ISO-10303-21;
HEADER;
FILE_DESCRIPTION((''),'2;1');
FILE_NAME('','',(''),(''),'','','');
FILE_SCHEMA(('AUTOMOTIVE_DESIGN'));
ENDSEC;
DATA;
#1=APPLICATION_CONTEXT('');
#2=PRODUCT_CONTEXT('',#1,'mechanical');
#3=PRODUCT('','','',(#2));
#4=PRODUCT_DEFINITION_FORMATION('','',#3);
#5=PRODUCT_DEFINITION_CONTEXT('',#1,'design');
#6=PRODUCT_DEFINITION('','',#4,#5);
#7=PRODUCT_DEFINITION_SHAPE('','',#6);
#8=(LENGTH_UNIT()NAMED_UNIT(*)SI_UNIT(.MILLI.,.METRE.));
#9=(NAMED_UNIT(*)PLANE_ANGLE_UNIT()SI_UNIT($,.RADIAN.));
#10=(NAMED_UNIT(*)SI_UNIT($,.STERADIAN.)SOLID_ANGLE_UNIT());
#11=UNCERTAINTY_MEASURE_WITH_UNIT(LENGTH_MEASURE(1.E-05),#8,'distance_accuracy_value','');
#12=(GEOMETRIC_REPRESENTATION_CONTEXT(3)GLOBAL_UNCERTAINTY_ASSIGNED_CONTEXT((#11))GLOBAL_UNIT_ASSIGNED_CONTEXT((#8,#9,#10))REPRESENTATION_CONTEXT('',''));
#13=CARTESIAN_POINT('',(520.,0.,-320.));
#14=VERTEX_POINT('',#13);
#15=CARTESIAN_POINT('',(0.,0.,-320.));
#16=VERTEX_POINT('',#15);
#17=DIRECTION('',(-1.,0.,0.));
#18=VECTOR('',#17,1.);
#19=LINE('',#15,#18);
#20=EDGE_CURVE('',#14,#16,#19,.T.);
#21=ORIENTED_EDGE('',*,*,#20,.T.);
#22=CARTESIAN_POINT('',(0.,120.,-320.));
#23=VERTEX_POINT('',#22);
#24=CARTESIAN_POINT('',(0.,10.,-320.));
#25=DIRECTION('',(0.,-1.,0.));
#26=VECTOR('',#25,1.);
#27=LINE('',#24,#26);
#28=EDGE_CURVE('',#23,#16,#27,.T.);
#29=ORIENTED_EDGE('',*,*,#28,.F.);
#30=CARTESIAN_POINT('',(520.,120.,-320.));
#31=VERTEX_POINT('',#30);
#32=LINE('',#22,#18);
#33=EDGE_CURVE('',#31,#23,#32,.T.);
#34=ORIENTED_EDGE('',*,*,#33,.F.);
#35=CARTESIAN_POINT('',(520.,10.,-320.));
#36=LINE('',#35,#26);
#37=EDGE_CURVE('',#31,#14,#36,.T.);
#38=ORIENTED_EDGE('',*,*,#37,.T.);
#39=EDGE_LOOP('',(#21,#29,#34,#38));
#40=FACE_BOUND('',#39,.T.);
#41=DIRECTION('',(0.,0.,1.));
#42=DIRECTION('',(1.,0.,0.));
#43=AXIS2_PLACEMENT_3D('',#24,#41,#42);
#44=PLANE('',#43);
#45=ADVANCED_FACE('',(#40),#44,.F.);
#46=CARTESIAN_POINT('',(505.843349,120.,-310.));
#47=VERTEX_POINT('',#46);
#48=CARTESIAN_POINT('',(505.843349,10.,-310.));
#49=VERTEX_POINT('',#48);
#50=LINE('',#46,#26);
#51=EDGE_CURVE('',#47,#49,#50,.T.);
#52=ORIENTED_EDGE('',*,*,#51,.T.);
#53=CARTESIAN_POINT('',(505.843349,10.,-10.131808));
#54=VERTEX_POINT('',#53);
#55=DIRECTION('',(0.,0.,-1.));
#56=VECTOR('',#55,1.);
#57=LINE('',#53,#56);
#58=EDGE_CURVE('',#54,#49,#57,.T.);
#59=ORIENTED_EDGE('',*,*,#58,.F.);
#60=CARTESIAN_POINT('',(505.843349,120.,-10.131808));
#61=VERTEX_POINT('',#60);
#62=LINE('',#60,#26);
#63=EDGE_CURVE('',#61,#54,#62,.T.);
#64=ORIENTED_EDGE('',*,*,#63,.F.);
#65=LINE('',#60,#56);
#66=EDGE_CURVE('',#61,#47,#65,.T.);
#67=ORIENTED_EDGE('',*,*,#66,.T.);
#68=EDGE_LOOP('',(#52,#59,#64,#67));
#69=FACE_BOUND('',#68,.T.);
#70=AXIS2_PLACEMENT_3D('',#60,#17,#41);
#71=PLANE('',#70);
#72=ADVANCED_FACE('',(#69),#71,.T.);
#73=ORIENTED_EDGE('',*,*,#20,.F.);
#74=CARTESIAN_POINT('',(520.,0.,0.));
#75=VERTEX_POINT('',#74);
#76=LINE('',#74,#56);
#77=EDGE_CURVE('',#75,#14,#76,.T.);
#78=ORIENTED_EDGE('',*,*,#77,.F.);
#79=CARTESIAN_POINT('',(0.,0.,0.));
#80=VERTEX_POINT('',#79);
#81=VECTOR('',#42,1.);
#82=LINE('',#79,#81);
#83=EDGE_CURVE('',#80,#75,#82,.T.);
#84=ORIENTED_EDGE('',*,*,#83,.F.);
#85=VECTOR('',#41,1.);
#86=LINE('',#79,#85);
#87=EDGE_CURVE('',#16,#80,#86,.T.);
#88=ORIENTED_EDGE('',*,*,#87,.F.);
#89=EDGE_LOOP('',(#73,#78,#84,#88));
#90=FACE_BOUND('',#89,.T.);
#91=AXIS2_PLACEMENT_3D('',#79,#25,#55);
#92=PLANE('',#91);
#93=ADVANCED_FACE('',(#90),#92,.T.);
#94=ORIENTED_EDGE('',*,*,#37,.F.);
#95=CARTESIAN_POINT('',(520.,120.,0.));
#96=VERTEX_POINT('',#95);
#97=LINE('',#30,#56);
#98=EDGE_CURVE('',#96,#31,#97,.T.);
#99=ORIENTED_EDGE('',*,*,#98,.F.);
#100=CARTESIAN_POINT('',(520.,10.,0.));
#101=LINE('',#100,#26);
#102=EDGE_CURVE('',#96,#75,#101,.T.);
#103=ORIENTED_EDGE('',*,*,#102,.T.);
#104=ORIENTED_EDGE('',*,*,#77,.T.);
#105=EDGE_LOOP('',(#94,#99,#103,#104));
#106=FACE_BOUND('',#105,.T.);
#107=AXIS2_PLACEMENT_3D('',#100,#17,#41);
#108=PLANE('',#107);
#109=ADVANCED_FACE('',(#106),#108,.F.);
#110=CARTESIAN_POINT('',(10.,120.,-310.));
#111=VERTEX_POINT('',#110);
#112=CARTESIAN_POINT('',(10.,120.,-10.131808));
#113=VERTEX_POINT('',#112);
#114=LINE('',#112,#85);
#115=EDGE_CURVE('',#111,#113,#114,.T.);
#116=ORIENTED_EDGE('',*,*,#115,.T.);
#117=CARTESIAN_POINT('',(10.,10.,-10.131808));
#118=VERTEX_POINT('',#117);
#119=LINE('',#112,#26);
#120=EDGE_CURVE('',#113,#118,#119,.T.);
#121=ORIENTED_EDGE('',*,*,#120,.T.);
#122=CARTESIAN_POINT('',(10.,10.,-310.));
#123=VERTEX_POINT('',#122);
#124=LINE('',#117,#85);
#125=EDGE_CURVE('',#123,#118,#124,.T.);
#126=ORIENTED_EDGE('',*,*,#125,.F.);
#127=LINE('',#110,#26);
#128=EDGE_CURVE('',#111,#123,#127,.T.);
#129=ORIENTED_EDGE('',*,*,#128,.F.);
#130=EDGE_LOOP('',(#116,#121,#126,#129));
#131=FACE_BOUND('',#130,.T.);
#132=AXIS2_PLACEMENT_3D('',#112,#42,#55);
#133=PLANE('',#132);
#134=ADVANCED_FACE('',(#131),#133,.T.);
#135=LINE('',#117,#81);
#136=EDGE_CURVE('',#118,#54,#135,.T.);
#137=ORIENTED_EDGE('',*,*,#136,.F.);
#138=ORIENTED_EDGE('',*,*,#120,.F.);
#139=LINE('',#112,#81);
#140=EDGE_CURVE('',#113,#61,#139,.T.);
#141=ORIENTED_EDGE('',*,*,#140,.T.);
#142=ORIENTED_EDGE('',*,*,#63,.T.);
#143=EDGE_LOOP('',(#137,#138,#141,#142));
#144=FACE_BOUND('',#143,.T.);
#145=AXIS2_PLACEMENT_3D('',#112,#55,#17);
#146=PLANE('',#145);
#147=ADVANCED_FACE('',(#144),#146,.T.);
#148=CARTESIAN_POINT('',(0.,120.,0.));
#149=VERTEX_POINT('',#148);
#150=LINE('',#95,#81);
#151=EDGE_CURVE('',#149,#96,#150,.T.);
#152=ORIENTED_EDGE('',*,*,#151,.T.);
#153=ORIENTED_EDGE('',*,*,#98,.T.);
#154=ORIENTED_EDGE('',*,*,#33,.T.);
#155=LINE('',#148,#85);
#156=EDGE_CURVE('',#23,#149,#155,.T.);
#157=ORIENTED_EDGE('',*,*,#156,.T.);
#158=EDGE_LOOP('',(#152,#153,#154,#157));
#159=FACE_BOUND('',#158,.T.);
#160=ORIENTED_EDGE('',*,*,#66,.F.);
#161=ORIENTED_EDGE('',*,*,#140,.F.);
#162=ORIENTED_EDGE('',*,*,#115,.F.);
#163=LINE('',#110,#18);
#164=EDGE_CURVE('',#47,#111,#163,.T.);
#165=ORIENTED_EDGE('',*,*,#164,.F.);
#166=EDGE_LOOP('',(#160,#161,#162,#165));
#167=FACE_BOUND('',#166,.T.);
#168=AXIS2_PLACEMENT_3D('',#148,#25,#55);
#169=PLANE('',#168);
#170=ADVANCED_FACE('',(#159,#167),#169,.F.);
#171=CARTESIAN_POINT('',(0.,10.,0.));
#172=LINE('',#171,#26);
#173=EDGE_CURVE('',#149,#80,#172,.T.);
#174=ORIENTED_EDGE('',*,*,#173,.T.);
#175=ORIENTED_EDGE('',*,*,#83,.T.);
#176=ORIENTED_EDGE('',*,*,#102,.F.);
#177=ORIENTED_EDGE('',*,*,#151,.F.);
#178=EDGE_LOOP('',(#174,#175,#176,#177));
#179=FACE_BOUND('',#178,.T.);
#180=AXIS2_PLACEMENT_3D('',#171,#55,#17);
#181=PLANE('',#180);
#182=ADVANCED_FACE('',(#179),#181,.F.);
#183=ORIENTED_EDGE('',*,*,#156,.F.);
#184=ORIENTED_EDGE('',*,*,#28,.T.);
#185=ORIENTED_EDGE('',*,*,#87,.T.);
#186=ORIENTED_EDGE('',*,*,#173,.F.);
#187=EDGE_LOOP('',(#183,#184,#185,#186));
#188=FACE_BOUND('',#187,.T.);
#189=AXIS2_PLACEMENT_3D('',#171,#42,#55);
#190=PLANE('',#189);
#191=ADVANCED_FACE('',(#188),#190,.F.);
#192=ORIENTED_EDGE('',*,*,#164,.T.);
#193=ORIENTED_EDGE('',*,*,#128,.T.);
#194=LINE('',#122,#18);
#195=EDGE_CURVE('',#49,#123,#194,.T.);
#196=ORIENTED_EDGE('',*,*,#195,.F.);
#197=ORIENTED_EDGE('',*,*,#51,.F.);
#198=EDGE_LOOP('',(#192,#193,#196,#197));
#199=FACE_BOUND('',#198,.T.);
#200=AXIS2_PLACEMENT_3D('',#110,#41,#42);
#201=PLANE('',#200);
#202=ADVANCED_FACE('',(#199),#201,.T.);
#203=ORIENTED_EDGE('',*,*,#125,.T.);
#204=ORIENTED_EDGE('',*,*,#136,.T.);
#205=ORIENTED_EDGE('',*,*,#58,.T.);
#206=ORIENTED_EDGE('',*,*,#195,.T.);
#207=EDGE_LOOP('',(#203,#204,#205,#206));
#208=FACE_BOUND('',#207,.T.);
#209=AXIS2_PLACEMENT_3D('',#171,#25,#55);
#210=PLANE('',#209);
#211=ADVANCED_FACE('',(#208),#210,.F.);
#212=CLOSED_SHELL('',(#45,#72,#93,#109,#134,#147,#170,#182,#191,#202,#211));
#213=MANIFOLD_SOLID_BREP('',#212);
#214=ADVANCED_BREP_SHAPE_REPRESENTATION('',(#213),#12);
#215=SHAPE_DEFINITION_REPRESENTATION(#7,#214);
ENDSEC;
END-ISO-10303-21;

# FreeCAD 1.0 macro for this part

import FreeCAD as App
import Part
import Sketcher
from FreeCAD import Vector
Q = App.Units.Quantity


def add_polygon(sketch, points):
    """Adds a closed chain of lines whose ends are joined by coincident constraints."""
    first, n = sketch.GeometryCount, len(points)
    for a, b in zip(points, points[1:] + points[:1]):
        sketch.addGeometry(Part.LineSegment(App.Vector(*a, 0), App.Vector(*b, 0)), False)
    for i in range(n):
        sketch.addConstraint(Sketcher.Constraint("Coincident", first + i, 2, first + (i + 1) % n, 1))

doc = App.newDocument("Part")
params = doc.addObject("Spreadsheet::Sheet", "Params")
for row, (alias, value) in enumerate([
    ("sketch1_width", "520 mm"),
    ("sketch1_height", "320 mm"),
    ("pad1_length", "10 mm"),
    ("sketch2_width", "520 mm"),
    ("sketch2_height", "320 mm"),
    ("pad2_length", "110 mm"),
], start=1):
    params.set(f"A{row}", alias)
    params.set(f"B{row}", "=" + value)
    params.setAlias(f"B{row}", alias)

body = doc.addObject("PartDesign::Body", "Body")

sketch1 = doc.addObject("Sketcher::SketchObject", "Sketch")
body.addObject(sketch1)
sketch1.AttachmentSupport = (doc.XZ_Plane, [""])
sketch1.MapMode = "FlatFace"
add_polygon(sketch1, [(0, -320), (0, 0), (520, 0), (520, -320)])
sketch1.addConstraint([
    Sketcher.Constraint("Vertical", 0),
    Sketcher.Constraint("Horizontal", 1),
    Sketcher.Constraint("Vertical", 2),
    Sketcher.Constraint("Horizontal", 3),
    Sketcher.Constraint("Coincident", 0, 2, -1, 1),
    Sketcher.Constraint("DistanceX", 1, 1, 1, 2, Q("520 mm")),
    Sketcher.Constraint("DistanceY", 0, 1, 0, 2, Q("320 mm")),
])
sketch1.setExpression("Constraints[9]", "Params.sketch1_width")
sketch1.setExpression("Constraints[10]", "Params.sketch1_height")
pad1 = doc.addObject("PartDesign::Pad", "Pad")
body.addObject(pad1)
pad1.Profile = sketch1
pad1.setExpression("Length", "Params.pad1_length")
pad1.Reversed = True

sketch2 = doc.addObject("Sketcher::SketchObject", "Sketch001")
body.addObject(sketch2)
sketch2.AttachmentSupport = (doc.XZ_Plane, [""])
sketch2.MapMode = "FlatFace"
sketch2.AttachmentOffset = App.Placement(Vector(0, 0, -10), App.Rotation())
add_polygon(sketch2, [(0, -320), (0, 0), (520, 0), (520, -320)])
add_polygon(sketch2, [(506, -10), (10, -10), (10, -310), (506, -310)])
sketch2.addConstraint([
    Sketcher.Constraint("Vertical", 0),
    Sketcher.Constraint("Horizontal", 1),
    Sketcher.Constraint("Vertical", 2),
    Sketcher.Constraint("Horizontal", 3),
    Sketcher.Constraint("Horizontal", 4),
    Sketcher.Constraint("Vertical", 5),
    Sketcher.Constraint("Horizontal", 6),
    Sketcher.Constraint("Vertical", 7),
    Sketcher.Constraint("Coincident", 0, 2, -1, 1),
    Sketcher.Constraint("DistanceX", 1, 1, 1, 2, Q("520 mm")),
    Sketcher.Constraint("DistanceY", 0, 1, 0, 2, Q("320 mm")),
    Sketcher.Constraint("DistanceX", -1, 1, 4, 2, Q("10 mm")),
    Sketcher.Constraint("DistanceY", 5, 2, -1, 1, Q("310 mm")),
    Sketcher.Constraint("DistanceX", 4, 2, 4, 1, Q("495.843349 mm")),
    Sketcher.Constraint("DistanceY", 5, 2, 5, 1, Q("299.868192 mm")),
])
sketch2.setExpression("Constraints[17]", "Params.sketch2_width")
sketch2.setExpression("Constraints[18]", "Params.sketch2_height")
pad2 = doc.addObject("PartDesign::Pad", "Pad001")
body.addObject(pad2)
pad2.Profile = sketch2
pad2.setExpression("Length", "Params.pad2_length")
pad2.Reversed = True

doc.recompute()
